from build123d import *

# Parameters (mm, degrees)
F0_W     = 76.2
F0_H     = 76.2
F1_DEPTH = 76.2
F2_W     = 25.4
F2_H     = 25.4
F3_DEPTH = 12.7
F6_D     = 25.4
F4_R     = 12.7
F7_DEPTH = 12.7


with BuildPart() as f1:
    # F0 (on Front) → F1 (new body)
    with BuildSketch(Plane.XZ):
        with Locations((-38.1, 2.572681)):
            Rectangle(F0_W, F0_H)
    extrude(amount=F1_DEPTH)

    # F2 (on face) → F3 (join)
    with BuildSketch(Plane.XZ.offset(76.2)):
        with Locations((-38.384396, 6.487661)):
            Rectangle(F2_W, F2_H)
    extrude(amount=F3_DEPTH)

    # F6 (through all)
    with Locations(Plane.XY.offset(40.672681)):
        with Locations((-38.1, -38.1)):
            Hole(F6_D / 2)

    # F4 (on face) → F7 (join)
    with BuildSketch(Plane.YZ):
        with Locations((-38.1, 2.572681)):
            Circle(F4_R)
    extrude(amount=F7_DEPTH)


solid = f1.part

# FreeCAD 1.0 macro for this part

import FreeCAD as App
import Part
import Sketcher

V = App.Vector
Q = App.Units.Quantity


def add_polygon(sketch, points):
    """Adds a closed chain of lines whose ends are joined by coincident constraints."""
    first, n = sketch.GeometryCount, len(points)
    for a, b in zip(points, points[1:] + points[:1]):
        sketch.addGeometry(Part.LineSegment(App.Vector(*a, 0), App.Vector(*b, 0)), False)
    for i in range(n):
        sketch.addConstraint(Sketcher.Constraint("Coincident", first + i, 2, first + (i + 1) % n, 1))

doc = App.newDocument("Part")
body = doc.addObject("PartDesign::Body", "Body")

# Sketch on XZ plane
sketch1 = doc.addObject("Sketcher::SketchObject", "Sketch")
body.addObject(sketch1)
sketch1.AttachmentSupport = (doc.XZ_Plane, [""])
sketch1.MapMode = "FlatFace"
add_polygon(sketch1, [(-76, 41), (-76, -36), (0, -36), (0, 41)])  # lines 0-3
sketch1.addConstraint(Sketcher.Constraint("Vertical", 0))
sketch1.addConstraint(Sketcher.Constraint("Horizontal", 1))
sketch1.addConstraint(Sketcher.Constraint("Vertical", 2))
sketch1.addConstraint(Sketcher.Constraint("Horizontal", 3))
sketch1.addConstraint(Sketcher.Constraint("PointOnObject", 1, 2, -2))
sketch1.addConstraint(Sketcher.Constraint("Equal", 3, 0))
sketch1.addConstraint(Sketcher.Constraint("DistanceX", 1, 1, 1, 2, Q("3 in")))
sketch1.addConstraint(Sketcher.Constraint("DistanceY", 0, 2, -1, 1, Q("35.527319 mm")))
pad1 = doc.addObject("PartDesign::Pad", "Pad")
body.addObject(pad1)
pad1.Profile = sketch1
pad1.Length = Q("3 in")

# Sketch on XZ plane
sketch2 = doc.addObject("Sketcher::SketchObject", "Sketch001")
body.addObject(sketch2)
sketch2.AttachmentSupport = (doc.XZ_Plane, [""])
sketch2.MapMode = "FlatFace"
sketch2.AttachmentOffset = App.Placement(V(0, 0, 3 * 25.4), App.Rotation())
add_polygon(sketch2, [(-51, 19), (-51, -6), (-26, -6), (-26, 19)])  # lines 0-3
sketch2.addConstraint(Sketcher.Constraint("Vertical", 0))
sketch2.addConstraint(Sketcher.Constraint("Horizontal", 1))
sketch2.addConstraint(Sketcher.Constraint("Vertical", 2))
sketch2.addConstraint(Sketcher.Constraint("Horizontal", 3))
sketch2.addConstraint(Sketcher.Constraint("Equal", 3, 0))
sketch2.addConstraint(Sketcher.Constraint("DistanceX", 1, 1, 1, 2, Q("1 in")))
sketch2.addConstraint(Sketcher.Constraint("DistanceY", 0, 2, -1, 1, Q("6.212339 mm")))
sketch2.addConstraint(Sketcher.Constraint("DistanceX", 0, 2, -1, 1, Q("51.084396 mm")))
pad2 = doc.addObject("PartDesign::Pad", "Pad001")
body.addObject(pad2)
pad2.Profile = sketch2
pad2.Length = Q("0.5 in")

# Sketch on XY plane
sketch3 = doc.addObject("Sketcher::SketchObject", "Sketch002")
body.addObject(sketch3)
sketch3.AttachmentSupport = (doc.XY_Plane, [""])
sketch3.MapMode = "FlatFace"
sketch3.AttachmentOffset = App.Placement(V(0, 0, 40.672681), App.Rotation())
sketch3.addGeometry(Part.Circle(V(-38, -38, 0), V(0, 0, 1), 13), False)
sketch3.addConstraint(Sketcher.Constraint("Diameter", 0, Q("1 in")))
sketch3.addConstraint(Sketcher.Constraint("DistanceX", 0, 3, -1, 1, Q("1.5 in")))
sketch3.addConstraint(Sketcher.Constraint("DistanceY", 0, 3, -1, 1, Q("1.5 in")))
doc.recompute()
hole = doc.addObject("PartDesign::Hole", "Hole")
body.addObject(hole)
hole.Profile = sketch3
hole.ThreadType = "None"
hole.Diameter = Q("1 in")
hole.DepthType = "ThroughAll"

# Sketch on YZ plane
sketch4 = doc.addObject("Sketcher::SketchObject", "Sketch003")
body.addObject(sketch4)
sketch4.AttachmentSupport = (doc.YZ_Plane, [""])
sketch4.MapMode = "FlatFace"
sketch4.addGeometry(Part.Circle(V(-38, 3, 0), V(0, 0, 1), 13), False)
sketch4.addConstraint(Sketcher.Constraint("Diameter", 0, Q("1 in")))
sketch4.addConstraint(Sketcher.Constraint("DistanceX", 0, 3, -1, 1, Q("1.5 in")))
sketch4.addConstraint(Sketcher.Constraint("DistanceY", -1, 1, 0, 3, Q("2.572681 mm")))
pad3 = doc.addObject("PartDesign::Pad", "Pad002")
body.addObject(pad3)
pad3.Profile = sketch4
pad3.Length = Q("0.5 in")

doc.recompute()
